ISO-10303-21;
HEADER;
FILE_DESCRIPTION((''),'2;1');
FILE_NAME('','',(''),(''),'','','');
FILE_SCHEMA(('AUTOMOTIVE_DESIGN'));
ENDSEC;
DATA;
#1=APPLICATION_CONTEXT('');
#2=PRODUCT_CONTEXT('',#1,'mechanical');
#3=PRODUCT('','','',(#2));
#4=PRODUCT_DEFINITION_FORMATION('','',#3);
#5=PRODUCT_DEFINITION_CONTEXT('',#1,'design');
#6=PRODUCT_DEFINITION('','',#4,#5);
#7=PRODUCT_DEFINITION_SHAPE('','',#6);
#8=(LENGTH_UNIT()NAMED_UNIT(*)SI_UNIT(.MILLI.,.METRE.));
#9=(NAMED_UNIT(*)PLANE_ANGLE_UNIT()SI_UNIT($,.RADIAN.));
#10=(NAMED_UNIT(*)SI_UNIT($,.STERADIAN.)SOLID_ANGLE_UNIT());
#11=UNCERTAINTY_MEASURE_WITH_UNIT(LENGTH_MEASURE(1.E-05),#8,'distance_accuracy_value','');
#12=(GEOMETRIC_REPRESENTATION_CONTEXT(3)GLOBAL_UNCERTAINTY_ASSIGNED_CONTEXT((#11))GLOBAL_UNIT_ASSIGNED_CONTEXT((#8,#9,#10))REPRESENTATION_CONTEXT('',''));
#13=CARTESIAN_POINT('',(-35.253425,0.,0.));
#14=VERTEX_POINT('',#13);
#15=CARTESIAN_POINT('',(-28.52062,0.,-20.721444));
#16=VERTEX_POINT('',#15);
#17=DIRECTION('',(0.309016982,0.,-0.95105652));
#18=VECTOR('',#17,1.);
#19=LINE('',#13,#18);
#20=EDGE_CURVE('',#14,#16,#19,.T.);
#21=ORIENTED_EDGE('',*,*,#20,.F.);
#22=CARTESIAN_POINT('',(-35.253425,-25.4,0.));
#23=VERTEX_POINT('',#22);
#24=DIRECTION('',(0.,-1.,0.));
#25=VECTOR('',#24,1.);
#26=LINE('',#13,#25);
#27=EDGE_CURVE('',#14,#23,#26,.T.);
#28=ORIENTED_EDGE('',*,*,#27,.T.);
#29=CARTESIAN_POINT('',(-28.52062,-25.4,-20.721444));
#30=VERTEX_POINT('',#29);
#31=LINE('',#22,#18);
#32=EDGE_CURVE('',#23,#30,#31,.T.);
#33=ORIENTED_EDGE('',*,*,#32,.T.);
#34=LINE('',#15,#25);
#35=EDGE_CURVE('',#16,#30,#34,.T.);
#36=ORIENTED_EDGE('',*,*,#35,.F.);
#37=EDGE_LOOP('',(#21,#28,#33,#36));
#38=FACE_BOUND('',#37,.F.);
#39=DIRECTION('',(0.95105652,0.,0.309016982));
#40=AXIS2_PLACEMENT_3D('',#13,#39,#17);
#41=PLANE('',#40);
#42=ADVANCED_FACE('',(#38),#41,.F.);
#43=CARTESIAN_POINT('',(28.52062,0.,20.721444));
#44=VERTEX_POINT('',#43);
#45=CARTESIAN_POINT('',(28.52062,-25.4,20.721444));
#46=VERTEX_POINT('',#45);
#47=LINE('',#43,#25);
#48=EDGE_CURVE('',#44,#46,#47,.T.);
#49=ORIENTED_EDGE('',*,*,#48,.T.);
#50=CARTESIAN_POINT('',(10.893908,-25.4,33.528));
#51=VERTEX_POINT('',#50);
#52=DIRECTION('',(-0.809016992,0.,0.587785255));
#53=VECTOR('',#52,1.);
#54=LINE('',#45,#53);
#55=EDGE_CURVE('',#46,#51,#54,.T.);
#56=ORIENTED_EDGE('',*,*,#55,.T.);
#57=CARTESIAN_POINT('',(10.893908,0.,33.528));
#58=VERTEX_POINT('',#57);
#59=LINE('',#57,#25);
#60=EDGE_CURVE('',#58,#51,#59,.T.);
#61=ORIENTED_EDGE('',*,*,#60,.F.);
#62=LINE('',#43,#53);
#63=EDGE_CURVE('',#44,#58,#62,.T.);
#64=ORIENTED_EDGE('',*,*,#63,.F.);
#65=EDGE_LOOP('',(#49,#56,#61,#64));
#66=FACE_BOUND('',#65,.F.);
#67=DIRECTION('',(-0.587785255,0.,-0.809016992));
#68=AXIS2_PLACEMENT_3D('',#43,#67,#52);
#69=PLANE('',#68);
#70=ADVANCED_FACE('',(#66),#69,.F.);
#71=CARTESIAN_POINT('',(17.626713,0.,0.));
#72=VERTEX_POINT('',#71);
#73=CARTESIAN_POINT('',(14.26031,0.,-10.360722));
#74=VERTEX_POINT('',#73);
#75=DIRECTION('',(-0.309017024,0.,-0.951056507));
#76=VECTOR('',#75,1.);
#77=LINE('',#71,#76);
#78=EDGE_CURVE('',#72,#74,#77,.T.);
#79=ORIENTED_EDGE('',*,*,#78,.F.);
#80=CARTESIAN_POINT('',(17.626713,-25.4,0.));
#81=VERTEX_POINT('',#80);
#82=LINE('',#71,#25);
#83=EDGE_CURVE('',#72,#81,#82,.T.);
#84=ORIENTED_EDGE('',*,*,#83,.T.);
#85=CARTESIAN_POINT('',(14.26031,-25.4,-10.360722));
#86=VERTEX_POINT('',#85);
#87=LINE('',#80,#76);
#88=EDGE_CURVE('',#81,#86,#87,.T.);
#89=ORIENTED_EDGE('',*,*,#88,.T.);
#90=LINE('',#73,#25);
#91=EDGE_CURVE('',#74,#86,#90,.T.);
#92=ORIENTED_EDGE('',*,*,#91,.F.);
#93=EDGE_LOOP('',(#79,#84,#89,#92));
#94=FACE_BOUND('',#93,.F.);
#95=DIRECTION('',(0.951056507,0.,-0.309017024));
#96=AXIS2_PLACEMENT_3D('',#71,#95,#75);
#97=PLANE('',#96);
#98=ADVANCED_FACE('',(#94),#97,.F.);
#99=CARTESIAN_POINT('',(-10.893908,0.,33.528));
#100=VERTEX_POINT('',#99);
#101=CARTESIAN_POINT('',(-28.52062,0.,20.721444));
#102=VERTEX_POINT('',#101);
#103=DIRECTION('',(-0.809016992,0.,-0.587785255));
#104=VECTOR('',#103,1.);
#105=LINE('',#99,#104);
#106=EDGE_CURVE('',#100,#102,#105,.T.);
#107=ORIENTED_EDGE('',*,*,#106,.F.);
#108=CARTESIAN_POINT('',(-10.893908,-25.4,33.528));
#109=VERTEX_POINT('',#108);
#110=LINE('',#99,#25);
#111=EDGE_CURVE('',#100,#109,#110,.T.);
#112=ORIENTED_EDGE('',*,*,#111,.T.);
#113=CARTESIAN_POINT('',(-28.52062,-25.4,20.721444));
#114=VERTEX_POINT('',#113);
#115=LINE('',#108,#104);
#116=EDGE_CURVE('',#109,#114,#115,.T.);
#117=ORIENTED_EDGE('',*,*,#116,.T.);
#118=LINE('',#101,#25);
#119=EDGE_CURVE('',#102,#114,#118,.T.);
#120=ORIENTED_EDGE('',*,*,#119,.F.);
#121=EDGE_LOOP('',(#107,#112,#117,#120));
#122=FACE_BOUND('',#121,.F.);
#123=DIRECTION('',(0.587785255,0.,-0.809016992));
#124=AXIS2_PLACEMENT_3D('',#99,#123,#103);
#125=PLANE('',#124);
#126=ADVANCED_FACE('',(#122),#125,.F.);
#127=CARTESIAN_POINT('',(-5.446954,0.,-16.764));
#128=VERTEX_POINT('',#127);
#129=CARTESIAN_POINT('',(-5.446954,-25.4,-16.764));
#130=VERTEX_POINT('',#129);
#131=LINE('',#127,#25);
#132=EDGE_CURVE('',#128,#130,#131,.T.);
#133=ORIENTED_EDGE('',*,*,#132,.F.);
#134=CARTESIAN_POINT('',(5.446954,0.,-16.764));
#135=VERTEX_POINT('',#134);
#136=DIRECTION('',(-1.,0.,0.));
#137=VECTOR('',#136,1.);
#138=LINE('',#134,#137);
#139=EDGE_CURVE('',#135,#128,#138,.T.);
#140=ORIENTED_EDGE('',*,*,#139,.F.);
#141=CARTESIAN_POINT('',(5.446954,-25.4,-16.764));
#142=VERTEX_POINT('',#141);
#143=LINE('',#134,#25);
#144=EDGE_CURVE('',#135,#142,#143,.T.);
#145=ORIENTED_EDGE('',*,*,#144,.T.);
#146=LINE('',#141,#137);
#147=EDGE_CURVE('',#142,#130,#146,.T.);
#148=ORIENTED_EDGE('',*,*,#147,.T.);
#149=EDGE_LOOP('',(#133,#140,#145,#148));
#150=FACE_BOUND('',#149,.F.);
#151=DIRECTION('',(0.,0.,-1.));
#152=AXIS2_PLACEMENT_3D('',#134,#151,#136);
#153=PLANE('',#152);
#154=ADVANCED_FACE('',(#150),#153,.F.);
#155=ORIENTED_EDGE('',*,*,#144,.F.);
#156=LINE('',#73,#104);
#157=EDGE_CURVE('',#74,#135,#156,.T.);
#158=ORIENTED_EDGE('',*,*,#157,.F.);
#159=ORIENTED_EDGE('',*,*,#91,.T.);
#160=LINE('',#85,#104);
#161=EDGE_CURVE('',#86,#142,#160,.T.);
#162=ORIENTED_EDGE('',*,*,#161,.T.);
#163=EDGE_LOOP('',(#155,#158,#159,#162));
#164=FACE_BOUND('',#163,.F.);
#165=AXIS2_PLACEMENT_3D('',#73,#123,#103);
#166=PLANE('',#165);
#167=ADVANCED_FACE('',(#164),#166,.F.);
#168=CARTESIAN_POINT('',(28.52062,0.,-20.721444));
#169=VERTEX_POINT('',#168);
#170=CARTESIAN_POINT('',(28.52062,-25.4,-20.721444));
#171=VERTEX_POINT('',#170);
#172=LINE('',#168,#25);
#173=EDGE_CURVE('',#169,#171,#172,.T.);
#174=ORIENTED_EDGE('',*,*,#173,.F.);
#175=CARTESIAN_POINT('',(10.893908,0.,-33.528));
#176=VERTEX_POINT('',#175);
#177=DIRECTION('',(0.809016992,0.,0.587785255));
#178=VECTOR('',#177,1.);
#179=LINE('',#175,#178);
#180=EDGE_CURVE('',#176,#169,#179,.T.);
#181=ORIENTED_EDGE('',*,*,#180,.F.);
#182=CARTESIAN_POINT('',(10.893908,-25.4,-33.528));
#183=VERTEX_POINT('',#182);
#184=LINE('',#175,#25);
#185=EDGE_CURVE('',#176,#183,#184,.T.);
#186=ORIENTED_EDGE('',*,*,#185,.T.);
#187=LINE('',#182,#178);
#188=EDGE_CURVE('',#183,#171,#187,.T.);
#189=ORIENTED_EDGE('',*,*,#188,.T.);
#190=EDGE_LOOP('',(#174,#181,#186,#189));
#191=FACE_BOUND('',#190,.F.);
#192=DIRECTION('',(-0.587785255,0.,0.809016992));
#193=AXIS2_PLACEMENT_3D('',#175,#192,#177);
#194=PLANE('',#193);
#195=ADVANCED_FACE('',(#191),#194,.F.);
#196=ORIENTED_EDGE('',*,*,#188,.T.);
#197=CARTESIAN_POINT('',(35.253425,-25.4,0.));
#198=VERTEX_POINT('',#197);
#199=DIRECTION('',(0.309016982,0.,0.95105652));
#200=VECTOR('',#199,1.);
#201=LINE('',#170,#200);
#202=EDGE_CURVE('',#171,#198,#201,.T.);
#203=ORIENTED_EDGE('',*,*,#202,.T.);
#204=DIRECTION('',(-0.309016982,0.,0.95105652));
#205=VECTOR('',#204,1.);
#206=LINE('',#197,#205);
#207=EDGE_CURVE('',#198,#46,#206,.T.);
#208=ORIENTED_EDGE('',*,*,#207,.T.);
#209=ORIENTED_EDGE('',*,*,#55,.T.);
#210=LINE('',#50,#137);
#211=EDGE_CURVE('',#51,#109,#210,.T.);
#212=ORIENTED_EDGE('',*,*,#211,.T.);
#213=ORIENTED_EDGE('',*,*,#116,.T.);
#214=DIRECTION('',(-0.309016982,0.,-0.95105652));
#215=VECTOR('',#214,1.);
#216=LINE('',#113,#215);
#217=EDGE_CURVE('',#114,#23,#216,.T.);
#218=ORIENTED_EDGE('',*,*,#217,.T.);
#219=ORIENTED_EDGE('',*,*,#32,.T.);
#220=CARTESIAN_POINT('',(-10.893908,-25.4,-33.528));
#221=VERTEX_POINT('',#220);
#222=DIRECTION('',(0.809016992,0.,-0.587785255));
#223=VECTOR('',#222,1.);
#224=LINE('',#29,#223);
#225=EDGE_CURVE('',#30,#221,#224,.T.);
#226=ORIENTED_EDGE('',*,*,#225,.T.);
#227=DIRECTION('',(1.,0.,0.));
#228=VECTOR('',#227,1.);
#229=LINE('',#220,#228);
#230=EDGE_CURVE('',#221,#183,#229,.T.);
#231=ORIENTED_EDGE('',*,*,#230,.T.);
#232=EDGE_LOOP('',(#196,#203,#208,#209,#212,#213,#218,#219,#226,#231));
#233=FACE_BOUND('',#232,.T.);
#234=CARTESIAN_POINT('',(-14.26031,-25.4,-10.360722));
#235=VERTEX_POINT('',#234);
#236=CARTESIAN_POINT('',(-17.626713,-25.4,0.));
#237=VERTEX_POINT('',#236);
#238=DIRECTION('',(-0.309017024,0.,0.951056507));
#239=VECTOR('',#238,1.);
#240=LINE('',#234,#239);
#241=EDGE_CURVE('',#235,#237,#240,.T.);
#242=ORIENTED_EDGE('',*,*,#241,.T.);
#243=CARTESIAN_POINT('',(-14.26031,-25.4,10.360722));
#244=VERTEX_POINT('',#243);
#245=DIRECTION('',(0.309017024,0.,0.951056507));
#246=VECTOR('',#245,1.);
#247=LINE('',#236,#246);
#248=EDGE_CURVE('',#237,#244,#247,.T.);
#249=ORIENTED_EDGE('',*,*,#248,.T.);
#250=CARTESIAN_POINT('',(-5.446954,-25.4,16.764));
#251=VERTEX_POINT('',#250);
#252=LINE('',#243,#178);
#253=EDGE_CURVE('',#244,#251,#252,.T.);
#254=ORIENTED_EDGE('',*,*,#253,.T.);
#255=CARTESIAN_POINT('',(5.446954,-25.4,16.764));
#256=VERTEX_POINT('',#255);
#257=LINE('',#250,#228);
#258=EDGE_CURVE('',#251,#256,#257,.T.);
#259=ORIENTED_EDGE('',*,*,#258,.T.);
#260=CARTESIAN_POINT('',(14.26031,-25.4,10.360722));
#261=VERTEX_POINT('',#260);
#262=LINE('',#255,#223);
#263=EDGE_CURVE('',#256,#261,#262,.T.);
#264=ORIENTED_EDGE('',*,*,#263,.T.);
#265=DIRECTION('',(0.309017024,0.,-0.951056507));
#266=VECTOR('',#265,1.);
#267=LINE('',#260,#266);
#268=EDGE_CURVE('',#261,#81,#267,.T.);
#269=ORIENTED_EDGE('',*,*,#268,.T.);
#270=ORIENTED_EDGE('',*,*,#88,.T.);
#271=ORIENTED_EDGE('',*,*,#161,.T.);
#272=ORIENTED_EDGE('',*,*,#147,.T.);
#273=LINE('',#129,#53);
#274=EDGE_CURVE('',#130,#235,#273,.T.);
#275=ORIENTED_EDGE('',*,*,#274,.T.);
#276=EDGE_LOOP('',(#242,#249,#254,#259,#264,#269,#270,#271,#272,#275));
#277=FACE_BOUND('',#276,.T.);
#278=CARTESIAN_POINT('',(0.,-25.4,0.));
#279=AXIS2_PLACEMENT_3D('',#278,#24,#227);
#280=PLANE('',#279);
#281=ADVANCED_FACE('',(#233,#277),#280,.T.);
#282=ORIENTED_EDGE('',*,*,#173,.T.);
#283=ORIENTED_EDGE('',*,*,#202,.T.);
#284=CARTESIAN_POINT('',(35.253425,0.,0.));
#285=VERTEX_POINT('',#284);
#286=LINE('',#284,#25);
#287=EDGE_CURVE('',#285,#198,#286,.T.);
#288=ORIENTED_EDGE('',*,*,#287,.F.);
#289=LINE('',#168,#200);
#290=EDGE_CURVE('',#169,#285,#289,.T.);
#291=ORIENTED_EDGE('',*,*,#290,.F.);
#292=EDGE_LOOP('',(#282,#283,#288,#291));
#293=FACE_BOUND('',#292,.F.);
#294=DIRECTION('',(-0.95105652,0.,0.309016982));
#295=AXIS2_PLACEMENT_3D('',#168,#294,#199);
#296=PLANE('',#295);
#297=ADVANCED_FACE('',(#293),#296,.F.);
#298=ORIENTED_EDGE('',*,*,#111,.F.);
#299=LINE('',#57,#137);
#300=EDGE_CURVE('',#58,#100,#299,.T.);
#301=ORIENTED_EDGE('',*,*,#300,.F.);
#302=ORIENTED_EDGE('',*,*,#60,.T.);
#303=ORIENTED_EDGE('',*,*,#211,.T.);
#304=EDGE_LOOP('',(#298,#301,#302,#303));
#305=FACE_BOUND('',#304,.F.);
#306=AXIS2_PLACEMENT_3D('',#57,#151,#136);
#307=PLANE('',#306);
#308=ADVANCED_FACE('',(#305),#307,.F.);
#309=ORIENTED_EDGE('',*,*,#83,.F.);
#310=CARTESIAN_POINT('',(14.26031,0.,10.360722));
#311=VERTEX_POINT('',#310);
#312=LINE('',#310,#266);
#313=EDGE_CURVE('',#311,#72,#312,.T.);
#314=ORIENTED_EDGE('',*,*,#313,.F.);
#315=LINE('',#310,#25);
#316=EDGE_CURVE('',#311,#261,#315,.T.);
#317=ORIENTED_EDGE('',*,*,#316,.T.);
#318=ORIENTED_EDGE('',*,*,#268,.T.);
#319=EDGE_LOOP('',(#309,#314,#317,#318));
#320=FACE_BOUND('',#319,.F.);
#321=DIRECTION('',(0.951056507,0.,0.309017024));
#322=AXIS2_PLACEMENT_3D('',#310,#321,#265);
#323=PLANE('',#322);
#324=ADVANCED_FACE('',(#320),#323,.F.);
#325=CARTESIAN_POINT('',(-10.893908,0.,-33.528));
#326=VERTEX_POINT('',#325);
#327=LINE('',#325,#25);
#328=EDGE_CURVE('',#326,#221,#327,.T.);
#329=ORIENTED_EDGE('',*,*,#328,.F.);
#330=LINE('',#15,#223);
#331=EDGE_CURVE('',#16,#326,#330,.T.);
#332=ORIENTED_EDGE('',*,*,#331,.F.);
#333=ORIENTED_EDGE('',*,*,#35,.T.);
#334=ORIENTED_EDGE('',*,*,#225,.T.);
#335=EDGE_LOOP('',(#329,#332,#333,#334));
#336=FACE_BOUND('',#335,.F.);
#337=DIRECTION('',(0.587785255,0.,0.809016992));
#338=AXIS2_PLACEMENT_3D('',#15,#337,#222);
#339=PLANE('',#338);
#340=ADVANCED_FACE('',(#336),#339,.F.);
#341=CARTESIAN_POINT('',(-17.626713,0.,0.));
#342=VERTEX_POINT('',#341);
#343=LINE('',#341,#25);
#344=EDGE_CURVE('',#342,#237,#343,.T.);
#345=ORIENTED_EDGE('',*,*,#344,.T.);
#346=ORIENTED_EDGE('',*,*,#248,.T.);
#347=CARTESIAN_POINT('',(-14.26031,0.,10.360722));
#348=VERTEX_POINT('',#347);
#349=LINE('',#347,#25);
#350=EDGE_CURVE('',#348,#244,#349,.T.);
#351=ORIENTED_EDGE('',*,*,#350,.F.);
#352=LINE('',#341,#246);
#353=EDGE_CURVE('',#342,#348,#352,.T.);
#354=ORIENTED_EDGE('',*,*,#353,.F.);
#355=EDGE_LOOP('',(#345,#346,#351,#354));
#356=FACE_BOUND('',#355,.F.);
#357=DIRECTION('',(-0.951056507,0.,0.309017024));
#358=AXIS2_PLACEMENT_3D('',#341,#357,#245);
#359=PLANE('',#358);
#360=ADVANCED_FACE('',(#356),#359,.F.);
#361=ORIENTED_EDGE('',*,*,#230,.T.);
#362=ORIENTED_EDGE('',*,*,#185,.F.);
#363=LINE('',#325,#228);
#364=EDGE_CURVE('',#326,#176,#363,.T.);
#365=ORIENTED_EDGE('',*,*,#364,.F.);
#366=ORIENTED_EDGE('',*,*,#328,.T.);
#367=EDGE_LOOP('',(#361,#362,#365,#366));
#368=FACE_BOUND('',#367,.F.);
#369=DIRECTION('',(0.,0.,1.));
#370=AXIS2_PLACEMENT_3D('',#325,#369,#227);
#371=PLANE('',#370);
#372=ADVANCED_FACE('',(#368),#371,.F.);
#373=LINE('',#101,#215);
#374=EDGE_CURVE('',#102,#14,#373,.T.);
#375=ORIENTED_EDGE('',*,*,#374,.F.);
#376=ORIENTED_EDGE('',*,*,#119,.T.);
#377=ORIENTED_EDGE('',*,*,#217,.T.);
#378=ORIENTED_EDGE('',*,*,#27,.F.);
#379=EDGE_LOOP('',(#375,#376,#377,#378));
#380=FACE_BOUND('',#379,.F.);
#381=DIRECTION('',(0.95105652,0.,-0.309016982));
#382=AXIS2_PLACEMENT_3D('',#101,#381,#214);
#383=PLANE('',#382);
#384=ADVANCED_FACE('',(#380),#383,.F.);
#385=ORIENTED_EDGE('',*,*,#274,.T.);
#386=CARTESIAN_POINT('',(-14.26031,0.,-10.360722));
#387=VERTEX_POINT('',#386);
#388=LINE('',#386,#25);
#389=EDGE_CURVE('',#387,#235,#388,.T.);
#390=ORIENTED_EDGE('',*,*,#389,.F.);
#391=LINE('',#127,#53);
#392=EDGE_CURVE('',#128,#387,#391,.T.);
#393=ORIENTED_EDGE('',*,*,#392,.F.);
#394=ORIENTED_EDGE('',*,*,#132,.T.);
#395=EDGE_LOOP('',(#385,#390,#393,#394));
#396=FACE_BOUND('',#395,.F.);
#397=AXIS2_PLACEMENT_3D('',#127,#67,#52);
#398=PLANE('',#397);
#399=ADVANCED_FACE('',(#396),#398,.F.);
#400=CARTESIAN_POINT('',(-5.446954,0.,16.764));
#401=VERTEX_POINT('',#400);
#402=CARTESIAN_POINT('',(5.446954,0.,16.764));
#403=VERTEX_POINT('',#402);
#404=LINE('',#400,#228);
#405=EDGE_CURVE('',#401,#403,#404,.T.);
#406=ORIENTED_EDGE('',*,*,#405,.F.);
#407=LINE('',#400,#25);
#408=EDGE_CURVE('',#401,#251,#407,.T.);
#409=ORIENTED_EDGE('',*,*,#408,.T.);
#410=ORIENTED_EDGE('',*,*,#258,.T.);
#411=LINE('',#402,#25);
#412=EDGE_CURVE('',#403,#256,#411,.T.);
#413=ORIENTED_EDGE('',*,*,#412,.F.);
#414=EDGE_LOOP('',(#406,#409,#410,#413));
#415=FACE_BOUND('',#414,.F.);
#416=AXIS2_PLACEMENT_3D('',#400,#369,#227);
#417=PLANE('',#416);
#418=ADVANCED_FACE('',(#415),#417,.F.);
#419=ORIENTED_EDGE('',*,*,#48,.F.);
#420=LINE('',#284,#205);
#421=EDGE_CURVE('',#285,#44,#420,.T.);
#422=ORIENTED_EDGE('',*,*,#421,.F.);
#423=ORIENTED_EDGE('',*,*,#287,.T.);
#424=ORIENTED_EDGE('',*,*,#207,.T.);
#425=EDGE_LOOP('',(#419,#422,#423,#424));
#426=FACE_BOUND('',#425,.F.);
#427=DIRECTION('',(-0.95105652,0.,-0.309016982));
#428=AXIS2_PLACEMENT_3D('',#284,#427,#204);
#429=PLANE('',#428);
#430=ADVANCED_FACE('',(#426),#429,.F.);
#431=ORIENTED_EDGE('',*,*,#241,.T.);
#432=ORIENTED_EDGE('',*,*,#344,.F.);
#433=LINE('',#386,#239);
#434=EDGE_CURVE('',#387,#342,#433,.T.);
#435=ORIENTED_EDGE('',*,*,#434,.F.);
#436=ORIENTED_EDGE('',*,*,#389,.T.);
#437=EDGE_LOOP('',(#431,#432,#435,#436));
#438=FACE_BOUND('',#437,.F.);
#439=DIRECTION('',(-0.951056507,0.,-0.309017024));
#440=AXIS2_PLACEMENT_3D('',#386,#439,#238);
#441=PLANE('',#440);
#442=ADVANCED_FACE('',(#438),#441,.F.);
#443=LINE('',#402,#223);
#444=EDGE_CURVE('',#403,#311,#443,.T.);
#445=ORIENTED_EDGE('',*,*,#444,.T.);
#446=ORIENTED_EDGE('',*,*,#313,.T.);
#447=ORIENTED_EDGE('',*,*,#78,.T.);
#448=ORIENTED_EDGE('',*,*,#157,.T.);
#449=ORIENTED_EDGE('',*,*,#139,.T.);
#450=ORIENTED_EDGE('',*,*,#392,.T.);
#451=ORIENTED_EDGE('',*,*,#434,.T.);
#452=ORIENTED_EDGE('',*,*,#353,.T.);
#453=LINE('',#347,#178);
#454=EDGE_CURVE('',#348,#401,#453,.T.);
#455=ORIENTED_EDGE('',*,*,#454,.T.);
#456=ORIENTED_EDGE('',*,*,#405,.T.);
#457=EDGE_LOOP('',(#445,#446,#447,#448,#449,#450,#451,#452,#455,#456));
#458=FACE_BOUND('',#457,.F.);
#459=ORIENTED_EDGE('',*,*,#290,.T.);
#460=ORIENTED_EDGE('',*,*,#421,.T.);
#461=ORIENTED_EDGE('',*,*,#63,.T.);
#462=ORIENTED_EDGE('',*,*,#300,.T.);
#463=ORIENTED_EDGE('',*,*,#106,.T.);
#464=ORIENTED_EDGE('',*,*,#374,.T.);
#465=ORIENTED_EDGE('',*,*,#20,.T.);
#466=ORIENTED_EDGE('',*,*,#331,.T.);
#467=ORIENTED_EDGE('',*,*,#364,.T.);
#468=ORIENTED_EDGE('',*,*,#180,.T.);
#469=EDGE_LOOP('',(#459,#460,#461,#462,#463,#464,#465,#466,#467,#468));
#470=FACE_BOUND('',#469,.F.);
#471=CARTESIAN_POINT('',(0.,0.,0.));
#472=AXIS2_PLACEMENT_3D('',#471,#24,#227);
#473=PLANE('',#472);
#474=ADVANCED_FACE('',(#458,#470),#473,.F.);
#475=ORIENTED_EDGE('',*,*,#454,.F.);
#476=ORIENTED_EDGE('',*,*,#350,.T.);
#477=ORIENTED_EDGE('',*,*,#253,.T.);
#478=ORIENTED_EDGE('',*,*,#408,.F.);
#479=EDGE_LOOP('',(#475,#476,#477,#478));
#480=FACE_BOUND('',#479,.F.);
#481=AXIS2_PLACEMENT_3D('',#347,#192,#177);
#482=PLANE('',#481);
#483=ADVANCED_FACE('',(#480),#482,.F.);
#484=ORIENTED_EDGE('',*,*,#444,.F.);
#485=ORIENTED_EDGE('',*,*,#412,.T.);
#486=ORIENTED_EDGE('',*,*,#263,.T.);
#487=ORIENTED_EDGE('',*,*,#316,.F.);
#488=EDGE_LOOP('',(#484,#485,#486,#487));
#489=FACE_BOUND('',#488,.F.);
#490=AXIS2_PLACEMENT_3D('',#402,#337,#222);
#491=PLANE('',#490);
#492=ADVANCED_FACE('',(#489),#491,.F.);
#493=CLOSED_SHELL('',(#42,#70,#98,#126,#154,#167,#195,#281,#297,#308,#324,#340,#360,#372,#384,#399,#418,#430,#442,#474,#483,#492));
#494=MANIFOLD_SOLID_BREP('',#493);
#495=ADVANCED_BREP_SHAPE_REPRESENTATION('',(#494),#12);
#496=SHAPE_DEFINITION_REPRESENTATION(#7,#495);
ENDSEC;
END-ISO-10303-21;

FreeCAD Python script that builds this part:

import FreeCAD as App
import Part
import Sketcher

V = App.Vector
Q = App.Units.Quantity


def add_polygon(sketch, points):
    """Adds a closed chain of lines whose ends are joined by coincident constraints."""
    first, n = sketch.GeometryCount, len(points)
    for a, b in zip(points, points[1:] + points[:1]):
        sketch.addGeometry(Part.LineSegment(App.Vector(*a, 0), App.Vector(*b, 0)), False)
    for i in range(n):
        sketch.addConstraint(Sketcher.Constraint("Coincident", first + i, 2, first + (i + 1) % n, 1))

doc = App.newDocument("Part")
body = doc.addObject("PartDesign::Body", "Body")

# Sketch on XZ plane
sketch1 = body.newObject("Sketcher::SketchObject", "Sketch")
sketch1.AttachmentSupport = (doc.getObject("XZ_Plane"), [""])
sketch1.MapMode = "FlatFace"
add_polygon(sketch1, [(11, 34), (-11, 34), (-29, 21), (-35, 0), (-29, -21), (-11, -34), (11, -34), (29, -21), (35, 0), (29, 21)])  # lines 0-9
add_polygon(sketch1, [(-14, 10), (-5, 17), (5, 17), (14, 10), (18, 0), (14, -10), (5, -17), (-5, -17), (-14, -10), (-18, 0)])  # lines 10-19
sketch1.addConstraint(Sketcher.Constraint("Horizontal", 0))
sketch1.addConstraint(Sketcher.Constraint("Horizontal", 5))
sketch1.addConstraint(Sketcher.Constraint("Horizontal", 11))
sketch1.addConstraint(Sketcher.Constraint("Horizontal", 16))
sketch1.addConstraint(Sketcher.Constraint("Symmetric", 0, 2, 5, 2, -1, 1))
sketch1.addConstraint(Sketcher.Constraint("Symmetric", 1, 2, 6, 2, -1, 1))
sketch1.addConstraint(Sketcher.Constraint("Symmetric", 2, 2, 7, 2, -1, 1))
sketch1.addConstraint(Sketcher.Constraint("Symmetric", 3, 2, 8, 2, -1, 1))
sketch1.addConstraint(Sketcher.Constraint("Symmetric", 10, 2, 15, 2, -1, 1))
sketch1.addConstraint(Sketcher.Constraint("Symmetric", 12, 2, 17, 2, -1, 1))
sketch1.addConstraint(Sketcher.Constraint("Symmetric", 13, 2, 18, 2, -1, 1))
sketch1.addConstraint(Sketcher.Constraint("Symmetric", 14, 2, 19, 2, -1, 1))
sketch1.addConstraint(Sketcher.Constraint("Symmetric", 3, 2, 6, 2, -2))
sketch1.addConstraint(Sketcher.Constraint("Symmetric", 14, 2, 17, 2, -2))
sketch1.addConstraint(Sketcher.Constraint("PointOnObject", 2, 2, -1))
sketch1.addConstraint(Sketcher.Constraint("PointOnObject", 13, 2, -1))
sketch1.addConstraint(Sketcher.Constraint("Parallel", 4, 9))
sketch1.addConstraint(Sketcher.Constraint("Parallel", 6, 10))
sketch1.addConstraint(Sketcher.Constraint("Parallel", 9, 12))
sketch1.addConstraint(Sketcher.Constraint("Parallel", 8, 13))
sketch1.addConstraint(Sketcher.Constraint("Parallel", 12, 17))
sketch1.addConstraint(Sketcher.Constraint("Vertical", 0, 2, 4, 2))
sketch1.addConstraint(Sketcher.Constraint("Equal", 1, 2))
sketch1.addConstraint(Sketcher.Constraint("Equal", 12, 13))
sketch1.addConstraint(Sketcher.Constraint("Angle", 1, Q("-144 deg")))
sketch1.addConstraint(Sketcher.Constraint("Angle", 2, Q("-107.999999 deg")))
sketch1.addConstraint(Sketcher.Constraint("DistanceY", -1, 1, 0, 2, Q("1.32 in")))
sketch1.addConstraint(Sketcher.Constraint("DistanceY", -1, 1, 10, 2, Q("0.66 in")))
sketch1.addConstraint(Sketcher.Constraint("DistanceX", 0, 2, 0, 1, Q("21.787816 mm")))
sketch1.addConstraint(Sketcher.Constraint("DistanceX", 11, 1, 11, 2, Q("10.893908 mm")))
pad1 = body.newObject("PartDesign::Pad", "Pad")
pad1.Profile = sketch1
pad1.Length = Q("1 in")

doc.recompute()
